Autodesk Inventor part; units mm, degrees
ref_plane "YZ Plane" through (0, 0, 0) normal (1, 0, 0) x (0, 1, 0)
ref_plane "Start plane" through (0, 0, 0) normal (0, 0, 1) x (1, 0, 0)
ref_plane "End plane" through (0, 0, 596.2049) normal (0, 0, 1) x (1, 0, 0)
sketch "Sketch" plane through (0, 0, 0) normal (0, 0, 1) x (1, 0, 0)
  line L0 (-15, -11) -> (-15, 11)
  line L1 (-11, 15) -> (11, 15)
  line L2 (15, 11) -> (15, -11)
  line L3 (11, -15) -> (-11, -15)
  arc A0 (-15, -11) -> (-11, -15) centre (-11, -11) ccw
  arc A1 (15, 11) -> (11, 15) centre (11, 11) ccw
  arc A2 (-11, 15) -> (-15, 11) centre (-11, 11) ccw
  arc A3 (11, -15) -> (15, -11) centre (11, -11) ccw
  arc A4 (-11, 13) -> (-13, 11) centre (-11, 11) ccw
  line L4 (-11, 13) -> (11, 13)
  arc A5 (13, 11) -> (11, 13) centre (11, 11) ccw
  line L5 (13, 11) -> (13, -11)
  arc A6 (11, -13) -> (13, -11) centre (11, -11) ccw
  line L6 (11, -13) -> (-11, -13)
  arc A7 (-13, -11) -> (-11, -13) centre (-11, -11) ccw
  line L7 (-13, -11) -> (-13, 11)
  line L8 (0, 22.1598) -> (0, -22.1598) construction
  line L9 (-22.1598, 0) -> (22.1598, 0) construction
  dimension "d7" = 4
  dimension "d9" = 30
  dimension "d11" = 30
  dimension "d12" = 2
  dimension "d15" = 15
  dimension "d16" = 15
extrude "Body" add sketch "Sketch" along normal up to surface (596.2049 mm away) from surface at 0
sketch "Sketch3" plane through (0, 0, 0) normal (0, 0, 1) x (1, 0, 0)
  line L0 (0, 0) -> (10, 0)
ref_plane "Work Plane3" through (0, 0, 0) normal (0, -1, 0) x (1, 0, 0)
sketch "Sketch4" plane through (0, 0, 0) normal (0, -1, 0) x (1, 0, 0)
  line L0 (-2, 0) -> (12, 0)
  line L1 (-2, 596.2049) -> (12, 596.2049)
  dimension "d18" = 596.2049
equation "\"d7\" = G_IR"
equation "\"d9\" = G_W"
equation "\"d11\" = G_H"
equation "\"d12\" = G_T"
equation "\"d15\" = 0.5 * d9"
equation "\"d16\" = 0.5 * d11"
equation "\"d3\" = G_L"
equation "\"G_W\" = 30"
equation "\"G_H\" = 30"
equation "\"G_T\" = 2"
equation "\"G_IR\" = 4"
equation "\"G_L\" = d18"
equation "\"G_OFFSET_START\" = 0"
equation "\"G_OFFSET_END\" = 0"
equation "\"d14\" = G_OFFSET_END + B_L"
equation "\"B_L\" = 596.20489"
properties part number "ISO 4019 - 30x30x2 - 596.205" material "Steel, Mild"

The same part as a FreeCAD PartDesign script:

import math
import FreeCAD as App
import Part
import Sketcher
from FreeCAD import Vector
Q = App.Units.Quantity

doc = App.newDocument("Part")
body = doc.addObject("PartDesign::Body", "Body")

# Sketch on XY plane
sketch1 = body.newObject("Sketcher::SketchObject", "Sketch")
sketch1.AttachmentSupport = (doc.getObject("XY_Plane"), [""])
sketch1.MapMode = "FlatFace"
sketch1.addGeometry([
    Part.LineSegment(Vector(-15, 11, 0), Vector(-15, -11, 0)),  # 0
    Part.ArcOfCircle(Part.Circle(Vector(-11, -11, 0), Vector(0, 0, 1), 4), math.radians(180), math.radians(270)),  # 1
    Part.LineSegment(Vector(-11, -15, 0), Vector(11, -15, 0)),  # 2
    Part.ArcOfCircle(Part.Circle(Vector(11, -11, 0), Vector(0, 0, 1), 4), math.radians(-90), math.radians(0)),  # 3
    Part.LineSegment(Vector(15, -11, 0), Vector(15, 11, 0)),  # 4
    Part.ArcOfCircle(Part.Circle(Vector(11, 11, 0), Vector(0, 0, 1), 4), math.radians(0), math.radians(90)),  # 5
    Part.LineSegment(Vector(11, 15, 0), Vector(-11, 15, 0)),  # 6
    Part.ArcOfCircle(Part.Circle(Vector(-11, 11, 0), Vector(0, 0, 1), 4), math.radians(90), math.radians(180)),  # 7
    Part.ArcOfCircle(Part.Circle(Vector(-11, 11, 0), Vector(0, 0, 1), 2), math.radians(90), math.radians(180)),  # 8
    Part.LineSegment(Vector(-11, 13, 0), Vector(11, 13, 0)),  # 9
    Part.ArcOfCircle(Part.Circle(Vector(11, 11, 0), Vector(0, 0, 1), 2), math.radians(0), math.radians(90)),  # 10
    Part.LineSegment(Vector(13, 11, 0), Vector(13, -11, 0)),  # 11
    Part.ArcOfCircle(Part.Circle(Vector(11, -11, 0), Vector(0, 0, 1), 2), math.radians(-90), math.radians(0)),  # 12
    Part.LineSegment(Vector(11, -13, 0), Vector(-11, -13, 0)),  # 13
    Part.ArcOfCircle(Part.Circle(Vector(-11, -11, 0), Vector(0, 0, 1), 2), math.radians(180), math.radians(270)),  # 14
    Part.LineSegment(Vector(-13, -11, 0), Vector(-13, 11, 0)),  # 15
], False)
sketch1.addConstraint([
    Sketcher.Constraint("Tangent", 0, 2, 1, 1),
    Sketcher.Constraint("Tangent", 1, 2, 2, 1),
    Sketcher.Constraint("Tangent", 2, 2, 3, 1),
    Sketcher.Constraint("Tangent", 3, 2, 4, 1),
    Sketcher.Constraint("Tangent", 4, 2, 5, 1),
    Sketcher.Constraint("Tangent", 5, 2, 6, 1),
    Sketcher.Constraint("Tangent", 6, 2, 7, 1),
    Sketcher.Constraint("Tangent", 7, 2, 0, 1),
    Sketcher.Constraint("Tangent", 8, 1, 9, 1),
    Sketcher.Constraint("Tangent", 9, 2, 10, 2),
    Sketcher.Constraint("Tangent", 10, 1, 11, 1),
    Sketcher.Constraint("Tangent", 11, 2, 12, 2),
    Sketcher.Constraint("Tangent", 12, 1, 13, 1),
    Sketcher.Constraint("Tangent", 13, 2, 14, 2),
    Sketcher.Constraint("Tangent", 14, 1, 15, 1),
    Sketcher.Constraint("Tangent", 15, 2, 8, 2),
    Sketcher.Constraint("Vertical", 0),
    Sketcher.Constraint("Horizontal", 2),
    Sketcher.Constraint("Vertical", 4),
    Sketcher.Constraint("Horizontal", 6),
    Sketcher.Constraint("Horizontal", 9),
    Sketcher.Constraint("Vertical", 11),
    Sketcher.Constraint("Horizontal", 13),
    Sketcher.Constraint("Vertical", 15),
    Sketcher.Constraint("Coincident", 8, 3, 7, 3),
    Sketcher.Constraint("Coincident", 10, 3, 5, 3),
    Sketcher.Constraint("Coincident", 12, 3, 3, 3),
    Sketcher.Constraint("Equal", 1, 3),
    Sketcher.Constraint("Equal", 3, 5),
    Sketcher.Constraint("Equal", 5, 7),
    Sketcher.Constraint("Equal", 12, 14),
    Sketcher.Constraint("Symmetric", 1, 3, 5, 3, -1, 1),
    Sketcher.Constraint("Equal", 13, 0),
    Sketcher.Constraint("Radius", 1, Q("4 mm")),
    Sketcher.Constraint("Radius", 8, Q("2 mm")),
    Sketcher.Constraint("DistanceX", 0, 2, -1, 1, Q("15 mm")),
])
pad1 = body.newObject("PartDesign::Pad", "Pad")
pad1.Profile = sketch1
pad1.Length = 596.2049

doc.recompute()
